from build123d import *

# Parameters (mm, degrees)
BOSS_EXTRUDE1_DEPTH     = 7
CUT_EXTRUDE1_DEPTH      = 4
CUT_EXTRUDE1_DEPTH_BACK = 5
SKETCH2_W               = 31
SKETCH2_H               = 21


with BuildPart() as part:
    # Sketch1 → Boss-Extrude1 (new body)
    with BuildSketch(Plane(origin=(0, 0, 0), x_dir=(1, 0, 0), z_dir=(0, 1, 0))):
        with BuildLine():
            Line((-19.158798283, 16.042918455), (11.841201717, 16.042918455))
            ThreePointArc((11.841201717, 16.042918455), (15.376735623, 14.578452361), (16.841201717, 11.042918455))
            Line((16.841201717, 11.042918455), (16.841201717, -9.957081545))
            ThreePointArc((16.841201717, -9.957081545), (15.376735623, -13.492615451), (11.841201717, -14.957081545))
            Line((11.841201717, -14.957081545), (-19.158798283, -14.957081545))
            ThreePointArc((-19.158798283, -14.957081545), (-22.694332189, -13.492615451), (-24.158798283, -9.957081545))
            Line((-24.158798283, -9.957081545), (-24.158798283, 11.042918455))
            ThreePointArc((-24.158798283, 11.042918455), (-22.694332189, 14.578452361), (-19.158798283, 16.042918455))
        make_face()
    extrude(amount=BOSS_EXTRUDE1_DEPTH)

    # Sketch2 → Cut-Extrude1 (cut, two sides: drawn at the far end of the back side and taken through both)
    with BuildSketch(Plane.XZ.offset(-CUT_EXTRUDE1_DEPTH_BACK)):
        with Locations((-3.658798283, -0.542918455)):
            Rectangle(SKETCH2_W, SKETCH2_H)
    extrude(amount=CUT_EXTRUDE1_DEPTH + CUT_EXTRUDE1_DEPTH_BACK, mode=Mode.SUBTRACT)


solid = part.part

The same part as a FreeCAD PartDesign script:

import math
import FreeCAD as App
import Part
import Sketcher

V = App.Vector

doc = App.newDocument("Part")
body = doc.addObject("PartDesign::Body", "Body")

sketch1 = doc.addObject("Sketcher::SketchObject", "Sketch")
body.addObject(sketch1)
sketch1.AttachmentSupport = (doc.XZ_Plane, [""])
sketch1.MapMode = "FlatFace"
sketch1.addGeometry([
    Part.LineSegment(V(12, -16, 0), V(-19, -16, 0)),
    Part.ArcOfCircle(Part.Circle(V(-19, -11, 0), V(0, 0, 1), 5), math.radians(180), math.radians(270)),
    Part.LineSegment(V(-24, -11, 0), V(-24, 10, 0)),
    Part.ArcOfCircle(Part.Circle(V(-19, 10, 0), V(0, 0, 1), 5), math.radians(90), math.radians(180)),
    Part.LineSegment(V(-19, 15, 0), V(12, 15, 0)),
    Part.ArcOfCircle(Part.Circle(V(12, 10, 0), V(0, 0, 1), 5), math.radians(0), math.radians(90)),
    Part.LineSegment(V(17, 10, 0), V(17, -11, 0)),
    Part.ArcOfCircle(Part.Circle(V(12, -11, 0), V(0, 0, 1), 5), math.radians(-90), math.radians(0)),
], False)
sketch1.addConstraint([
    Sketcher.Constraint("Tangent", 0, 2, 1, 2),
    Sketcher.Constraint("Tangent", 1, 1, 2, 1),
    Sketcher.Constraint("Tangent", 2, 2, 3, 2),
    Sketcher.Constraint("Tangent", 3, 1, 4, 1),
    Sketcher.Constraint("Tangent", 4, 2, 5, 2),
    Sketcher.Constraint("Tangent", 5, 1, 6, 1),
    Sketcher.Constraint("Tangent", 6, 2, 7, 2),
    Sketcher.Constraint("Tangent", 7, 1, 0, 1),
    Sketcher.Constraint("Horizontal", 0),
    Sketcher.Constraint("Vertical", 2),
    Sketcher.Constraint("Horizontal", 4),
    Sketcher.Constraint("Vertical", 6),
    Sketcher.Constraint("Equal", 1, 3),
    Sketcher.Constraint("Equal", 3, 5),
    Sketcher.Constraint("Equal", 5, 7),
    Sketcher.Constraint("Radius", 1, 5.0),
    Sketcher.Constraint("DistanceX", 0, 2, 0, 1, 31.0),
    Sketcher.Constraint("DistanceY", 2, 1, 2, 2, 21.0),
    Sketcher.Constraint("DistanceX", 1, 3, -1, 1, 19.158798),
    Sketcher.Constraint("DistanceY", 1, 3, -1, 1, 11.042918),
])
pad1 = doc.addObject("PartDesign::Pad", "Pad")
body.addObject(pad1)
pad1.Profile = sketch1
pad1.Length = 7
pad1.Reversed = True

sketch2 = doc.addObject("Sketcher::SketchObject", "Sketch001")
body.addObject(sketch2)
sketch2.AttachmentSupport = (doc.XZ_Plane, [""])
sketch2.MapMode = "FlatFace"
sketch2.addGeometry([
    Part.LineSegment(V(-19, 10, 0), V(-19, -11, 0)),
    Part.LineSegment(V(-19, -11, 0), V(12, -11, 0)),
    Part.LineSegment(V(12, -11, 0), V(12, 10, 0)),
    Part.LineSegment(V(12, 10, 0), V(-19, 10, 0)),
], False)
sketch2.addConstraint([
    Sketcher.Constraint("Coincident", 0, 2, 1, 1),
    Sketcher.Constraint("Coincident", 1, 2, 2, 1),
    Sketcher.Constraint("Coincident", 2, 2, 3, 1),
    Sketcher.Constraint("Coincident", 3, 2, 0, 1),
    Sketcher.Constraint("Vertical", 0),
    Sketcher.Constraint("Horizontal", 1),
    Sketcher.Constraint("Vertical", 2),
    Sketcher.Constraint("Horizontal", 3),
    Sketcher.Constraint("DistanceX", 1, 1, 1, 2, 31.0),
    Sketcher.Constraint("DistanceY", 0, 2, 0, 1, 21.0),
    Sketcher.Constraint("DistanceX", 0, 2, -1, 1, 19.158798),
    Sketcher.Constraint("DistanceY", 0, 2, -1, 1, 11.042918),
])
pocket1 = doc.addObject("PartDesign::Pocket", "Pocket")
body.addObject(pocket1)
pocket1.Profile = sketch2
pocket1.Type = "TwoLengths"
pocket1.Length = 4
pocket1.Length2 = 5
pocket1.Reversed = True

doc.recompute()
